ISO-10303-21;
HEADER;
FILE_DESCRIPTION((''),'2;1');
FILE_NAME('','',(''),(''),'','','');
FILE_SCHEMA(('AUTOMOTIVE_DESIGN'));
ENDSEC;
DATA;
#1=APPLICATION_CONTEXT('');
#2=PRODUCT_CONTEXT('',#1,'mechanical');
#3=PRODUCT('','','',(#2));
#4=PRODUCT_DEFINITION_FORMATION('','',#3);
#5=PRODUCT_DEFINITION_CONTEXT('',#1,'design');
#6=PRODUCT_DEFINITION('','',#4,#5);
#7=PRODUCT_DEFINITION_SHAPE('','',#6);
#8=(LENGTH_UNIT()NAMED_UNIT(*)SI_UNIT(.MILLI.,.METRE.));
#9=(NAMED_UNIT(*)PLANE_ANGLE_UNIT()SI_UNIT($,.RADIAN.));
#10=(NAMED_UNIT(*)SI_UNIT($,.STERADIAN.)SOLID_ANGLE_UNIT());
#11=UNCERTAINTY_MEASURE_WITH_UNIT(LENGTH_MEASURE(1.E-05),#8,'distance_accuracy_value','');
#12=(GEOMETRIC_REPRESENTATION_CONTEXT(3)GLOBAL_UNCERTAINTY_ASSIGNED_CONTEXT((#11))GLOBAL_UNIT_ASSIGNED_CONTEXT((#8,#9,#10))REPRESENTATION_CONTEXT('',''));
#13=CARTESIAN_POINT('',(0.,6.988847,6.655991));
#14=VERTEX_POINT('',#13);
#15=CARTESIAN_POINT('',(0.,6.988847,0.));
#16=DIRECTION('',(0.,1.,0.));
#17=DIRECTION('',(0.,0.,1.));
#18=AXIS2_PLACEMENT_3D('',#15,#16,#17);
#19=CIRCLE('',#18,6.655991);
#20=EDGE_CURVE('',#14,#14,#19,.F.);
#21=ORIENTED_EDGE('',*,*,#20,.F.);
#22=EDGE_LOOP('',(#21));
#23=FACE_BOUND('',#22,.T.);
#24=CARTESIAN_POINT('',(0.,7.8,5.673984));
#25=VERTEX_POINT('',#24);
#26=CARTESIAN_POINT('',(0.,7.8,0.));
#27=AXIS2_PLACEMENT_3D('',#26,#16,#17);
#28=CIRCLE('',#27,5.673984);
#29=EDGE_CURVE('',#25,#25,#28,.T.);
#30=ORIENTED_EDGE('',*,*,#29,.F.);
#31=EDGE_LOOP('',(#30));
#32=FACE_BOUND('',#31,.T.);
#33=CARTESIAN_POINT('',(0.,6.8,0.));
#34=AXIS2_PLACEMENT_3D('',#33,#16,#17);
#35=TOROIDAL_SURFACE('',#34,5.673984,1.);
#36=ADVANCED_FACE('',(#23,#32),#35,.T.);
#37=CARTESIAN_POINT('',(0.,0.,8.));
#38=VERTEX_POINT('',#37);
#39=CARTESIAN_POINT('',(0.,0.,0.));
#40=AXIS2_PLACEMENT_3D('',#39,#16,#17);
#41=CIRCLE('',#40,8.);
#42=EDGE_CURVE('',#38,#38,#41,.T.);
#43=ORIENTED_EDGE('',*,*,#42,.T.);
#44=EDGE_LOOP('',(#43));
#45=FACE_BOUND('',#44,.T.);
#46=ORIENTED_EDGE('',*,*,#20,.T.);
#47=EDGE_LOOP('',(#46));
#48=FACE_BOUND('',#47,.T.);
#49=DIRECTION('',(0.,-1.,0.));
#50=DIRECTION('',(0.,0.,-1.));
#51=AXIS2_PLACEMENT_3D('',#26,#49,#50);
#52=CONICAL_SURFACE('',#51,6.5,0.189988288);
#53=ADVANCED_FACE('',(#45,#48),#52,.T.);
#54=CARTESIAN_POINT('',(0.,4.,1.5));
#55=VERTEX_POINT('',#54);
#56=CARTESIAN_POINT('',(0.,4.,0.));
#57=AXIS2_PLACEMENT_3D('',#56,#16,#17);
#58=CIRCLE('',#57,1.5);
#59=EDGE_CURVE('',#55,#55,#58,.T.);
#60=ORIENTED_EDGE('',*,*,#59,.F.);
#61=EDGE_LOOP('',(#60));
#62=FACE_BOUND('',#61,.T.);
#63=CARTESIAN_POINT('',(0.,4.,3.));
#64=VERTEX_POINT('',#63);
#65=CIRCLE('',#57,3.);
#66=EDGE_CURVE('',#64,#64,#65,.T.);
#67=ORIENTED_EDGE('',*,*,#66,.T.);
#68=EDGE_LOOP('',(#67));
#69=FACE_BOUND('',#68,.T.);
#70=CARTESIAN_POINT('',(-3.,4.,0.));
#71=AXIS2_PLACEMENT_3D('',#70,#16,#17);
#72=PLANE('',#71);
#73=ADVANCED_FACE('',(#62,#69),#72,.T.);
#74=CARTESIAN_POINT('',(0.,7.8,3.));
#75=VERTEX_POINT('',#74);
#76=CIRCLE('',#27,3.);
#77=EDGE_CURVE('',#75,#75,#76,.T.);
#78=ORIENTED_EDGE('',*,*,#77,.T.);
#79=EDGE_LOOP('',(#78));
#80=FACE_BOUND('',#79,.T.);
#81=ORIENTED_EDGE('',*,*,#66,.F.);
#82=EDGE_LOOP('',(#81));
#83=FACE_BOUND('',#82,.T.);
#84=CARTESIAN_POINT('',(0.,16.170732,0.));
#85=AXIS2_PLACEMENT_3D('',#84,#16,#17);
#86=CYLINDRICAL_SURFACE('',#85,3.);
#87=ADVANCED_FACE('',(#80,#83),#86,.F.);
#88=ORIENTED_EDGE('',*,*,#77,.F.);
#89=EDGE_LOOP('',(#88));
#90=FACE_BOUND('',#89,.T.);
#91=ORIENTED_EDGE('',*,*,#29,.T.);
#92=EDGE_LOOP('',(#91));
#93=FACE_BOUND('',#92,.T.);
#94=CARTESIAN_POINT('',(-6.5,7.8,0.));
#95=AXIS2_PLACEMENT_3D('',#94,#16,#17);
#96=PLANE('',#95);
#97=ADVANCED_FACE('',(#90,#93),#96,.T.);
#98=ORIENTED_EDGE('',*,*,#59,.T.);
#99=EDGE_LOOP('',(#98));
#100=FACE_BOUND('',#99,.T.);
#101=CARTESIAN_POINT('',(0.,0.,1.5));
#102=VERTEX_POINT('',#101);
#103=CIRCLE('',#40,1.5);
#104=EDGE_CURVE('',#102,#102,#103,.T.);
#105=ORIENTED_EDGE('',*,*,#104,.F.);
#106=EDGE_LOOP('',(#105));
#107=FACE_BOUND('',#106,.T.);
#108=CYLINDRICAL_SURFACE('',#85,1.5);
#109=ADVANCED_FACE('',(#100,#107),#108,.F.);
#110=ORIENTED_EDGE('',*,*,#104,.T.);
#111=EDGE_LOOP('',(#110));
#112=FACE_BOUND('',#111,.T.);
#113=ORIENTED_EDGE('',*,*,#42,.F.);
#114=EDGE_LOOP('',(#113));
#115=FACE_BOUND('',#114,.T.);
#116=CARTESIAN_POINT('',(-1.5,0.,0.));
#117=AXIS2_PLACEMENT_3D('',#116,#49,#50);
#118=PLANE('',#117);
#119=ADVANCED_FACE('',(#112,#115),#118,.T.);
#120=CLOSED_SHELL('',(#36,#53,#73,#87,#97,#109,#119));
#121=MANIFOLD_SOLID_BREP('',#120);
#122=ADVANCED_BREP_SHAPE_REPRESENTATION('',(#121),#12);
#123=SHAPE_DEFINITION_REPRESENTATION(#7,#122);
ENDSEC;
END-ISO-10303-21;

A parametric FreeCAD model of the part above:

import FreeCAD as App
import Part
import Sketcher

V = App.Vector
Q = App.Units.Quantity


def edges_at(feature, points):
    """Names of the edges that pass closest to the given points."""
    edges = feature.Shape.Edges
    near = lambda p: min(range(len(edges)), key=lambda i: edges[i].distToShape(Part.Vertex(*p))[0])
    return sorted({f"Edge{near(p) + 1}" for p in points})


def add_polygon(sketch, points):
    """Adds a closed chain of lines whose ends are joined by coincident constraints."""
    first, n = sketch.GeometryCount, len(points)
    for a, b in zip(points, points[1:] + points[:1]):
        sketch.addGeometry(Part.LineSegment(App.Vector(*a, 0), App.Vector(*b, 0)), False)
    for i in range(n):
        sketch.addConstraint(Sketcher.Constraint("Coincident", first + i, 2, first + (i + 1) % n, 1))

doc = App.newDocument("Part")
body = doc.addObject("PartDesign::Body", "Body")

# Sketch on XY plane
sketch1 = body.newObject("Sketcher::SketchObject", "Sketch")
sketch1.AttachmentSupport = (doc.getObject("XY_Plane"), [""])
sketch1.MapMode = "FlatFace"
add_polygon(sketch1, [(-8, 0), (-1.5, 0), (-1.5, 4), (-3, 4), (-3, 7.8), (-6.5, 7.8)])  # lines 0-5
sketch1.addConstraint([
    Sketcher.Constraint("Horizontal", 0),
    Sketcher.Constraint("Vertical", 1),
    Sketcher.Constraint("Horizontal", 2),
    Sketcher.Constraint("Vertical", 3),
    Sketcher.Constraint("Horizontal", 4),
    Sketcher.Constraint("PointOnObject", 0, 2, -1),
    Sketcher.Constraint("DistanceY", 1, 1, 1, 2, Q("4 mm")),
    Sketcher.Constraint("DistanceX", 0, 1, 0, 2, Q("6.5 mm")),
    Sketcher.Constraint("DistanceX", 2, 2, 2, 1, Q("1.5 mm")),
    Sketcher.Constraint("DistanceX", 4, 2, 4, 1, Q("3.5 mm")),
    Sketcher.Constraint("DistanceY", 3, 1, 3, 2, Q("3.8 mm")),
    Sketcher.Constraint("DistanceX", 2, 2, -1, 1, Q("3 mm")),
])
revolution = body.newObject("PartDesign::Revolution", "Revolution")
revolution.Profile = sketch1
revolution.ReferenceAxis = (sketch1, ["V_Axis"])
revolution.Angle = 360
doc.recompute()

fillet = body.newObject("PartDesign::Fillet", "Fillet")
fillet.Base = (revolution, edges_at(revolution, [(0, 7.8, -6.5)]))
fillet.Radius = 1

doc.recompute()
